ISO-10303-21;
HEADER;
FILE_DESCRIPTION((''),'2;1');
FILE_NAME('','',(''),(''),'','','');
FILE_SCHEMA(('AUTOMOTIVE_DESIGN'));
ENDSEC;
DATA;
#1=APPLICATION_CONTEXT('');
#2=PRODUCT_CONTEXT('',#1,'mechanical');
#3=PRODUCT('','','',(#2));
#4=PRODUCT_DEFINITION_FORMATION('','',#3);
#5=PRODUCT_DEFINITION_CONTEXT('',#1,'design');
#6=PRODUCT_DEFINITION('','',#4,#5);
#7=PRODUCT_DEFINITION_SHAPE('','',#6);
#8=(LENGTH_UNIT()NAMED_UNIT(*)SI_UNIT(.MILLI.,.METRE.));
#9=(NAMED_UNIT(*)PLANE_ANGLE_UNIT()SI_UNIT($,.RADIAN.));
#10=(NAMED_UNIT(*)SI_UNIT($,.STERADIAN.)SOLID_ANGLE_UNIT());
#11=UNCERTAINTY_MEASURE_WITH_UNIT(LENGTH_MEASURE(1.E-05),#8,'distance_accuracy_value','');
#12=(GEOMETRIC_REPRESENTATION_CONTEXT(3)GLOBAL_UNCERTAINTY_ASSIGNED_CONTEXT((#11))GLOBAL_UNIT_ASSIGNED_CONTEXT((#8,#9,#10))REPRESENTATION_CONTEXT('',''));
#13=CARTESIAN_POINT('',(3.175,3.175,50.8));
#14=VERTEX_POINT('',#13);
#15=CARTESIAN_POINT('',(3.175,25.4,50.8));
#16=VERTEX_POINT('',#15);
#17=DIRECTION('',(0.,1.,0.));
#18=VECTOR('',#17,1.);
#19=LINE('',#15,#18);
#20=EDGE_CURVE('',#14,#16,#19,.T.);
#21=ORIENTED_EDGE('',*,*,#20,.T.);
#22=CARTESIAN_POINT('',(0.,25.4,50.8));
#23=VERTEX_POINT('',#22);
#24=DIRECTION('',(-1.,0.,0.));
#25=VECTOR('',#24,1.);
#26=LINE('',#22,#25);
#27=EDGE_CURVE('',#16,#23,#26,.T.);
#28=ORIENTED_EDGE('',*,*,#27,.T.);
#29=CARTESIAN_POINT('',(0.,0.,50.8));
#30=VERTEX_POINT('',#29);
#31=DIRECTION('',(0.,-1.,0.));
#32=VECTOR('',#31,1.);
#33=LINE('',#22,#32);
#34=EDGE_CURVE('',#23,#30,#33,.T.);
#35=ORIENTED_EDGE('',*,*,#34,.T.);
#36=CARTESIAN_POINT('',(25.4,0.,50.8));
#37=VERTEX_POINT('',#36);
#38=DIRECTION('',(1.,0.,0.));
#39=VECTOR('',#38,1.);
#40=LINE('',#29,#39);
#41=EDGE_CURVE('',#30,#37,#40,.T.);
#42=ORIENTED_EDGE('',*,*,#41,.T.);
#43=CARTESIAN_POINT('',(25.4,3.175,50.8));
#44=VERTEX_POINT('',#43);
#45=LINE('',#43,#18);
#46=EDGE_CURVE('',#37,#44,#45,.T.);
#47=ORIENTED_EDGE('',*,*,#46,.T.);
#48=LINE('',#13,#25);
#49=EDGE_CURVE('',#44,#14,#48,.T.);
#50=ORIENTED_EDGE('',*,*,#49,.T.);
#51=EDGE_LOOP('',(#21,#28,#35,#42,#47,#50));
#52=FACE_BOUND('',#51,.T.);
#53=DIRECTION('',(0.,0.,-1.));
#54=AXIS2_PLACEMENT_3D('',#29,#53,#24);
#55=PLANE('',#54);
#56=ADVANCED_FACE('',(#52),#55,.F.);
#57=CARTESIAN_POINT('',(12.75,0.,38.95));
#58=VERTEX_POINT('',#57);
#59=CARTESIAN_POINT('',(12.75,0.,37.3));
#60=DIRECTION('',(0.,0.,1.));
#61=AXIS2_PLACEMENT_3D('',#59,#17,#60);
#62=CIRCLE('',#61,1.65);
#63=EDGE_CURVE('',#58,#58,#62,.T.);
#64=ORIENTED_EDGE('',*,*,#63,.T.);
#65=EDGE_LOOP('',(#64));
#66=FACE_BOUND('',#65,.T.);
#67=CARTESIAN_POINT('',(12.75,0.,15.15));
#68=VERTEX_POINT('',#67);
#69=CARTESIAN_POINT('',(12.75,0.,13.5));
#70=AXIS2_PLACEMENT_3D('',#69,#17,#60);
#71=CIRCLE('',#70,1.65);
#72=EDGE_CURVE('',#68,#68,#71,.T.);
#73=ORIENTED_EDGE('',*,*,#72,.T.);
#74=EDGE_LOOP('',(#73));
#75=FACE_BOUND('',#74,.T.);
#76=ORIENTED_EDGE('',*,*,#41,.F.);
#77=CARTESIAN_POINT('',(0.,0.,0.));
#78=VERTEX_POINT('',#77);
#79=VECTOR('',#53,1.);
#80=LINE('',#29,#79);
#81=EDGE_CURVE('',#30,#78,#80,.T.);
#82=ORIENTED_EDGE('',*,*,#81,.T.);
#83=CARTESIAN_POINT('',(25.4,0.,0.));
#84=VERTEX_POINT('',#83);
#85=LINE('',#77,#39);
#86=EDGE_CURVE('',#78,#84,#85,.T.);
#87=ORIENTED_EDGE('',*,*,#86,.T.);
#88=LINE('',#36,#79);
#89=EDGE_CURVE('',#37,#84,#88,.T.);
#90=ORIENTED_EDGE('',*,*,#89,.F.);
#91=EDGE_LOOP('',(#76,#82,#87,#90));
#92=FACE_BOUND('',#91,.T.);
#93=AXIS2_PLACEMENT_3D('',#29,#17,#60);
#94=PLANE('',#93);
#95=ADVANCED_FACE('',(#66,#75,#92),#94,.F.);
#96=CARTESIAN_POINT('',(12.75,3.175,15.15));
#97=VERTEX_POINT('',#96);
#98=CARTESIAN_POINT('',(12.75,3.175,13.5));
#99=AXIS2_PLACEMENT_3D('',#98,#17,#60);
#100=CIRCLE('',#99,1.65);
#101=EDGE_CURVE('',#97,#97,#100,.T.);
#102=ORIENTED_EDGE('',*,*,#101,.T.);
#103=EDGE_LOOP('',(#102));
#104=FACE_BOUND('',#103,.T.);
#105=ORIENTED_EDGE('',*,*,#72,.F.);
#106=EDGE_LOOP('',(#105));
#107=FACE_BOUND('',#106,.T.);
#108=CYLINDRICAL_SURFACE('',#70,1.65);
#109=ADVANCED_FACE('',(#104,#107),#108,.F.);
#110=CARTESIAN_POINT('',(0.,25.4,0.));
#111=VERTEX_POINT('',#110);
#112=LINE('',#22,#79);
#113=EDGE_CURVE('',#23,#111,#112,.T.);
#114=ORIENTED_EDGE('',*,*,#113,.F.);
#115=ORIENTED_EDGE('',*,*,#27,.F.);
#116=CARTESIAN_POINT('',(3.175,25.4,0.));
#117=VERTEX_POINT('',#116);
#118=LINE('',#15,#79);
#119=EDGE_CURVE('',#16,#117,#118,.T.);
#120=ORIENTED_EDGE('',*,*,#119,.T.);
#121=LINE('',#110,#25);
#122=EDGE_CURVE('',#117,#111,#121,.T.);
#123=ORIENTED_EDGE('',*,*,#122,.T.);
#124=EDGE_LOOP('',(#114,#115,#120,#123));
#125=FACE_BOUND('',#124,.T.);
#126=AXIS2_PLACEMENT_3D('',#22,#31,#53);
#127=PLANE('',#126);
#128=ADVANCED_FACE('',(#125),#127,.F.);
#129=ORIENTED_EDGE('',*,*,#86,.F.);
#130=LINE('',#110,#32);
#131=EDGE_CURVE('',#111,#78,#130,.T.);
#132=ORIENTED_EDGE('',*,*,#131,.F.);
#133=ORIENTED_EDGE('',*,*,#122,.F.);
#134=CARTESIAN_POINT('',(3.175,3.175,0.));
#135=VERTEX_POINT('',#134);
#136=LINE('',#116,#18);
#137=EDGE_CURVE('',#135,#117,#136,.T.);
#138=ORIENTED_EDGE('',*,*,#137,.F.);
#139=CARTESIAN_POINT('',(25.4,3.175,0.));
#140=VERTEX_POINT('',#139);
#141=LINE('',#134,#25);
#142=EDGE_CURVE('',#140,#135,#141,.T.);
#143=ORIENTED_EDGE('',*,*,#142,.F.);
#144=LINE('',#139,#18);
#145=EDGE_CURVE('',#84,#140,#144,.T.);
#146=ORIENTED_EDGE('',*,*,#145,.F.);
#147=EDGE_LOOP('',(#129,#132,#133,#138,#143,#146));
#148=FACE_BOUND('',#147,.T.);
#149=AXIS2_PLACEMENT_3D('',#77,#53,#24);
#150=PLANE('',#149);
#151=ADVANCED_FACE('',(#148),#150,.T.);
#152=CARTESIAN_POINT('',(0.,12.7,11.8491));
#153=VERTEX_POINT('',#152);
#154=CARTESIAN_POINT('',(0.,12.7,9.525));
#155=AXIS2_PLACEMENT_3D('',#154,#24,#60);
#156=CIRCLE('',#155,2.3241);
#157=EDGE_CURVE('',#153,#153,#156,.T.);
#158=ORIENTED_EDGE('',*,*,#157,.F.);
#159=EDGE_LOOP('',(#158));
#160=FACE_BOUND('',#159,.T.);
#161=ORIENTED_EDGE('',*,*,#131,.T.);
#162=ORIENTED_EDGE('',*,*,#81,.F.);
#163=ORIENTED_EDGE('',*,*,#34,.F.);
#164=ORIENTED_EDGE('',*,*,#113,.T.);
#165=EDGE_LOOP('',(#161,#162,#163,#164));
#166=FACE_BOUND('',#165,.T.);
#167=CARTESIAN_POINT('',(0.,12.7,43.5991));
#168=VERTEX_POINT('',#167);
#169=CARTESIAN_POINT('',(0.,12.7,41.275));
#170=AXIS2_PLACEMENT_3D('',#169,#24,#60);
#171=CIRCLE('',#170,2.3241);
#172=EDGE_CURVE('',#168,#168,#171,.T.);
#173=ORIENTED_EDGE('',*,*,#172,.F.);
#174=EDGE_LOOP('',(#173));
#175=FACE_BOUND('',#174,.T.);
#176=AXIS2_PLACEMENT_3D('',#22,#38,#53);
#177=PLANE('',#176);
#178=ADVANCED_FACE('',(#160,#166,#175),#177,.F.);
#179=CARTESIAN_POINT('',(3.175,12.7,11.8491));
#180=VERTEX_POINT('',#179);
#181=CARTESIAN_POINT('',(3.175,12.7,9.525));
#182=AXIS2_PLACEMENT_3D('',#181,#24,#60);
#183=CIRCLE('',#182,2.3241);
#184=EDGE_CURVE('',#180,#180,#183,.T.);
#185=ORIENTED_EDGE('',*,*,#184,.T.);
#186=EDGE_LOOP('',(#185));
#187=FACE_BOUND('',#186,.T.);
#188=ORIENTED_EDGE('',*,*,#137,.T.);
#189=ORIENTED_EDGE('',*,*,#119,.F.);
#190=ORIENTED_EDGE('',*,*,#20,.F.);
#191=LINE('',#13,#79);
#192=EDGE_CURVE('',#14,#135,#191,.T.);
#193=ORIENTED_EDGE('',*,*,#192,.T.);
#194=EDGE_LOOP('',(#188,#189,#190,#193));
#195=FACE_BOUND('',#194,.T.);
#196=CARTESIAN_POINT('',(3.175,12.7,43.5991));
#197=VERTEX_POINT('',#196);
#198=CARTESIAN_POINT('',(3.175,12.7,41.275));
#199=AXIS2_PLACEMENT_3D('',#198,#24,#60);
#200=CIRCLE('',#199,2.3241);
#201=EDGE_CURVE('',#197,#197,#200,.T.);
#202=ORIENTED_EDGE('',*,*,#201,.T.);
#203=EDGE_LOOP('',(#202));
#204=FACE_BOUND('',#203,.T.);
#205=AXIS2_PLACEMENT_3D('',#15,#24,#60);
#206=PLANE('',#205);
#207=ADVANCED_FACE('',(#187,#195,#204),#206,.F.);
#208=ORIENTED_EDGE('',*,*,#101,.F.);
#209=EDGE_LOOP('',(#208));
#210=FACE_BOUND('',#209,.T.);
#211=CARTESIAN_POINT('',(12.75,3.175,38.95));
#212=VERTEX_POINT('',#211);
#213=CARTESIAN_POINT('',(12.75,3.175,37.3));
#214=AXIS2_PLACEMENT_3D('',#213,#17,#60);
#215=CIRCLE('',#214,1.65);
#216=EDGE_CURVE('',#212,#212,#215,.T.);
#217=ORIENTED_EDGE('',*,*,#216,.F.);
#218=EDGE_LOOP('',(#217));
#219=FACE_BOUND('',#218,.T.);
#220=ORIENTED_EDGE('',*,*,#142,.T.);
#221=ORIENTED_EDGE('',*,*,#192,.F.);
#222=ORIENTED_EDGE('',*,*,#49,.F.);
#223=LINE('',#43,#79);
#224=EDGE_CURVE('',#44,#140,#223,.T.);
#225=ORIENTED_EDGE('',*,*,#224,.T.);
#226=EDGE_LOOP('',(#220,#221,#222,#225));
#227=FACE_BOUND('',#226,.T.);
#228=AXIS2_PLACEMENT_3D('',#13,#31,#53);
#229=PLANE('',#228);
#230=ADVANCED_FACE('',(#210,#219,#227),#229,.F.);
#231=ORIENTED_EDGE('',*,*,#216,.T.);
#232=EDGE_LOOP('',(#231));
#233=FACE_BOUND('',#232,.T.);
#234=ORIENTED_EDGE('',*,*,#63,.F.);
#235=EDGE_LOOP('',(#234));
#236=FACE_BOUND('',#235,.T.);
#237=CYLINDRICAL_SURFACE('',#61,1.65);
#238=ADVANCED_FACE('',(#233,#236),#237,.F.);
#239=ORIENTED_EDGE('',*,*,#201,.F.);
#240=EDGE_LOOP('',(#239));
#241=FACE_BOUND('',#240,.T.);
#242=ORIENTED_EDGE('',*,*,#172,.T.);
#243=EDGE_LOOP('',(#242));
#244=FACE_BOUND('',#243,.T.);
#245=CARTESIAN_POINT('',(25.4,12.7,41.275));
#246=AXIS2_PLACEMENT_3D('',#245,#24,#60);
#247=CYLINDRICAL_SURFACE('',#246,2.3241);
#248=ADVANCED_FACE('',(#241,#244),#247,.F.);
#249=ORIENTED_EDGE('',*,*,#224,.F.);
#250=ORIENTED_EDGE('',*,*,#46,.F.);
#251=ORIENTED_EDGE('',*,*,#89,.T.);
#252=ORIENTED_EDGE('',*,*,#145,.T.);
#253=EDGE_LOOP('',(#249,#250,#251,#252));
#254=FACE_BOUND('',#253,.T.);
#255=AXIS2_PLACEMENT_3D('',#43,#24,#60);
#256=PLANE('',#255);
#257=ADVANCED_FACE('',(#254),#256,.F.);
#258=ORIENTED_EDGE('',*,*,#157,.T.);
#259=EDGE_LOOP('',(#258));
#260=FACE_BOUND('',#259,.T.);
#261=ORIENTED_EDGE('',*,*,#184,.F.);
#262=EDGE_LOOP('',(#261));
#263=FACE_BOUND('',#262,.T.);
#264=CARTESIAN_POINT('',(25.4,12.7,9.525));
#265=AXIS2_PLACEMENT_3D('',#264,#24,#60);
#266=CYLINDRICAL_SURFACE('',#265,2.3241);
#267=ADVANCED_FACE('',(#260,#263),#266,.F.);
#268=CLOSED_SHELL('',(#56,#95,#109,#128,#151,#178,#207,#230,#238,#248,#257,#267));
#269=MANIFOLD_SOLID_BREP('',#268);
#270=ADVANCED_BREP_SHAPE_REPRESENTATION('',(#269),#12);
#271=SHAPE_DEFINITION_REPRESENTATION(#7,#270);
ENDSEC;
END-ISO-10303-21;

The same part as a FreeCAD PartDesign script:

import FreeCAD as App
import Part
import Sketcher

V = App.Vector
Q = App.Units.Quantity

doc = App.newDocument("Part")
body = doc.addObject("PartDesign::Body", "Body")

sketch1 = doc.addObject("Sketcher::SketchObject", "Sketch")
body.addObject(sketch1)
sketch1.AttachmentSupport = (doc.XY_Plane, [""])
sketch1.MapMode = "FlatFace"
sketch1.addGeometry([
    Part.LineSegment(V(0, 25.4, 0), V(0, 0, 0)),
    Part.LineSegment(V(0, 0, 0), V(25.4, 0, 0)),
    Part.LineSegment(V(25.4, 0, 0), V(25.4, 3.2, 0)),
    Part.LineSegment(V(25.4, 3.2, 0), V(3.2, 3.2, 0)),
    Part.LineSegment(V(3.2, 3.2, 0), V(3.2, 25.4, 0)),
    Part.LineSegment(V(3.2, 25.4, 0), V(0, 25.4, 0)),
], False)
sketch1.addConstraint([
    Sketcher.Constraint("Coincident", 0, 2, 1, 1),
    Sketcher.Constraint("Coincident", 1, 2, 2, 1),
    Sketcher.Constraint("Coincident", 2, 2, 3, 1),
    Sketcher.Constraint("Coincident", 3, 2, 4, 1),
    Sketcher.Constraint("Coincident", 4, 2, 5, 1),
    Sketcher.Constraint("Coincident", 5, 2, 0, 1),
    Sketcher.Constraint("Vertical", 0),
    Sketcher.Constraint("Horizontal", 1),
    Sketcher.Constraint("Vertical", 2),
    Sketcher.Constraint("Horizontal", 3),
    Sketcher.Constraint("Vertical", 4),
    Sketcher.Constraint("Horizontal", 5),
    Sketcher.Constraint("Coincident", 0, 2, -1, 1),
    Sketcher.Constraint("Equal", 1, 0),
    Sketcher.Constraint("Equal", 5, 2),
    Sketcher.Constraint("DistanceX", 1, 1, 1, 2, Q("1 in")),
    Sketcher.Constraint("DistanceX", 3, 2, 3, 1, Q("0.875 in")),
])
pad1 = doc.addObject("PartDesign::Pad", "Pad")
body.addObject(pad1)
pad1.Profile = sketch1
pad1.Length = Q("2 in")

sketch2 = doc.addObject("Sketcher::SketchObject", "Sketch001")
body.addObject(sketch2)
sketch2.AttachmentSupport = (doc.XZ_Plane, [""])
sketch2.MapMode = "FlatFace"
sketch2.AttachmentOffset = App.Placement(V(0, 0, -0.125 * 25.4), App.Rotation())
sketch2.addGeometry([
    Part.Circle(V(12.8, 13.5, 0), V(0, 0, 1), 1.6),
    Part.Circle(V(12.8, 37.3, 0), V(0, 0, 1), 1.6),
], False)
sketch2.addConstraint([
    Sketcher.Constraint("Equal", 0, 1),
    Sketcher.Constraint("Vertical", 0, 3, 1, 3),
    Sketcher.Constraint("Diameter", 0, 3.3),
    Sketcher.Constraint("DistanceX", -1, 1, 0, 3, 12.75),
    Sketcher.Constraint("DistanceY", -1, 1, 0, 3, 13.5),
    Sketcher.Constraint("DistanceY", -1, 1, 1, 3, 37.3),
])
pocket1 = doc.addObject("PartDesign::Pocket", "Pocket")
body.addObject(pocket1)
pocket1.Profile = sketch2
pocket1.Type = "ThroughAll"
pocket1.Reversed = True

sketch3 = doc.addObject("Sketcher::SketchObject", "Sketch002")
body.addObject(sketch3)
sketch3.AttachmentSupport = (doc.YZ_Plane, [""])
sketch3.MapMode = "FlatFace"
sketch3.addGeometry([
    Part.Circle(V(12.7, 9.5, 0), V(0, 0, 1), 2.3),
    Part.Circle(V(12.7, 41.3, 0), V(0, 0, 1), 2.3),
], False)
sketch3.addConstraint([
    Sketcher.Constraint("Equal", 0, 1),
    Sketcher.Constraint("Vertical", 0, 3, 1, 3),
    Sketcher.Constraint("Diameter", 0, Q("0.183 in")),
    Sketcher.Constraint("DistanceX", -1, 1, 0, 3, Q("0.5 in")),
    Sketcher.Constraint("DistanceY", 0, 3, 1, 3, Q("1.25 in")),
    Sketcher.Constraint("DistanceY", -1, 1, 0, 3, Q("0.375 in")),
])
pocket2 = doc.addObject("PartDesign::Pocket", "Pocket001")
body.addObject(pocket2)
pocket2.Profile = sketch3
pocket2.Type = "ThroughAll"
pocket2.Reversed = True

doc.recompute()
